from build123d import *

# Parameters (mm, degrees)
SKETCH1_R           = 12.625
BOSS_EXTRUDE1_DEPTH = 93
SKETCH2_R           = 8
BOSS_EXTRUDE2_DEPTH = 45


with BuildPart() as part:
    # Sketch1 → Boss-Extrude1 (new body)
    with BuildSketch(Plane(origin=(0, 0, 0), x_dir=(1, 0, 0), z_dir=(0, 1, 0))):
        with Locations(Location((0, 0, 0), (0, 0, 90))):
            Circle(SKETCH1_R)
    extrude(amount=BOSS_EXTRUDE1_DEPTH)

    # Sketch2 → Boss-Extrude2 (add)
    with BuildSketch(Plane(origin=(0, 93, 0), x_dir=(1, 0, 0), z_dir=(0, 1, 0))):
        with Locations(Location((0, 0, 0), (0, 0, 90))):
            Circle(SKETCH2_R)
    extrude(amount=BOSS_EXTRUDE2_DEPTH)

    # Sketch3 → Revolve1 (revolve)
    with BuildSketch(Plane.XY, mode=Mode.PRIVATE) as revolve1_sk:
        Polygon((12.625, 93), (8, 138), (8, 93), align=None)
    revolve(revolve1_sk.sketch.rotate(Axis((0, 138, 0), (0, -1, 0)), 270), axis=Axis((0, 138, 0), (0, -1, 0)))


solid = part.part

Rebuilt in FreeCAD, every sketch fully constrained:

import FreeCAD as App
import Part
import Sketcher


def add_polygon(sketch, points):
    """Adds a closed chain of lines whose ends are joined by coincident constraints."""
    first, n = sketch.GeometryCount, len(points)
    for a, b in zip(points, points[1:] + points[:1]):
        sketch.addGeometry(Part.LineSegment(App.Vector(*a, 0), App.Vector(*b, 0)), False)
    for i in range(n):
        sketch.addConstraint(Sketcher.Constraint("Coincident", first + i, 2, first + (i + 1) % n, 1))

doc = App.newDocument("Part")
params = doc.addObject("Spreadsheet::Sheet", "Params")
for row, (alias, value) in enumerate([
    ("sketch1_diameter", "25.25 mm"),
    ("pad1_length", "93 mm"),
    ("sketch2_diameter", "16 mm"),
    ("pad2_length", "45 mm"),
    ("sketch3_height", "45 mm"),
    ("revolution_angle", "360 deg"),
], start=1):
    params.set(f"A{row}", alias)
    params.set(f"B{row}", "=" + value)
    params.setAlias(f"B{row}", alias)

body = doc.addObject("PartDesign::Body", "Body")

# Sketch on XZ plane
sketch1 = body.newObject("Sketcher::SketchObject", "Sketch")
sketch1.AttachmentSupport = (doc.getObject("XZ_Plane"), [""])
sketch1.MapMode = "FlatFace"
sketch1.addGeometry(Part.Circle(App.Vector(0, 0, 0), App.Vector(0, 0, 1), 12.625), False)
sketch1.addConstraint([
    Sketcher.Constraint("Coincident", 0, 3, -1, 1),
    Sketcher.Constraint("Diameter", 0, 25.25),
])
sketch1.setExpression("Constraints[1]", "Params.sketch1_diameter")
pad1 = body.newObject("PartDesign::Pad", "Pad")
pad1.Profile = sketch1
pad1.setExpression("Length", "Params.pad1_length")
pad1.Reversed = True

# Sketch on XZ plane
sketch2 = body.newObject("Sketcher::SketchObject", "Sketch001")
sketch2.AttachmentSupport = (doc.getObject("XZ_Plane"), [""])
sketch2.MapMode = "FlatFace"
sketch2.AttachmentOffset = App.Placement(App.Vector(0, 0, -93), App.Rotation())
sketch2.addGeometry(Part.Circle(App.Vector(0, 0, 0), App.Vector(0, 0, 1), 8), False)
sketch2.addConstraint([
    Sketcher.Constraint("Coincident", 0, 3, -1, 1),
    Sketcher.Constraint("Diameter", 0, 16.0),
])
sketch2.setExpression("Constraints[1]", "Params.sketch2_diameter")
pad2 = body.newObject("PartDesign::Pad", "Pad001")
pad2.Profile = sketch2
pad2.setExpression("Length", "Params.pad2_length")
pad2.Reversed = True

# Sketch on XY plane
sketch3 = body.newObject("Sketcher::SketchObject", "Sketch002")
sketch3.AttachmentSupport = (doc.getObject("XY_Plane"), [""])
sketch3.MapMode = "FlatFace"
add_polygon(sketch3, [(12.625, 93), (8, 138), (8, 93)])  # lines 0-2
sketch3.addConstraint([
    Sketcher.Constraint("Vertical", 1),
    Sketcher.Constraint("Horizontal", 2),
    Sketcher.Constraint("DistanceY", 1, 2, 1, 1, 45.0),
    Sketcher.Constraint("DistanceX", -1, 1, 0, 2, 8.0),
    Sketcher.Constraint("DistanceY", -1, 1, 0, 2, 138.0),
    Sketcher.Constraint("DistanceX", 2, 1, 2, 2, 4.625),
])
sketch3.setExpression("Constraints[5]", "Params.sketch3_height")
revolution = body.newObject("PartDesign::Revolution", "Revolution")
revolution.Profile = sketch3
revolution.ReferenceAxis = (sketch3, ["V_Axis"])
revolution.setExpression("Angle", "Params.revolution_angle")

doc.recompute()
